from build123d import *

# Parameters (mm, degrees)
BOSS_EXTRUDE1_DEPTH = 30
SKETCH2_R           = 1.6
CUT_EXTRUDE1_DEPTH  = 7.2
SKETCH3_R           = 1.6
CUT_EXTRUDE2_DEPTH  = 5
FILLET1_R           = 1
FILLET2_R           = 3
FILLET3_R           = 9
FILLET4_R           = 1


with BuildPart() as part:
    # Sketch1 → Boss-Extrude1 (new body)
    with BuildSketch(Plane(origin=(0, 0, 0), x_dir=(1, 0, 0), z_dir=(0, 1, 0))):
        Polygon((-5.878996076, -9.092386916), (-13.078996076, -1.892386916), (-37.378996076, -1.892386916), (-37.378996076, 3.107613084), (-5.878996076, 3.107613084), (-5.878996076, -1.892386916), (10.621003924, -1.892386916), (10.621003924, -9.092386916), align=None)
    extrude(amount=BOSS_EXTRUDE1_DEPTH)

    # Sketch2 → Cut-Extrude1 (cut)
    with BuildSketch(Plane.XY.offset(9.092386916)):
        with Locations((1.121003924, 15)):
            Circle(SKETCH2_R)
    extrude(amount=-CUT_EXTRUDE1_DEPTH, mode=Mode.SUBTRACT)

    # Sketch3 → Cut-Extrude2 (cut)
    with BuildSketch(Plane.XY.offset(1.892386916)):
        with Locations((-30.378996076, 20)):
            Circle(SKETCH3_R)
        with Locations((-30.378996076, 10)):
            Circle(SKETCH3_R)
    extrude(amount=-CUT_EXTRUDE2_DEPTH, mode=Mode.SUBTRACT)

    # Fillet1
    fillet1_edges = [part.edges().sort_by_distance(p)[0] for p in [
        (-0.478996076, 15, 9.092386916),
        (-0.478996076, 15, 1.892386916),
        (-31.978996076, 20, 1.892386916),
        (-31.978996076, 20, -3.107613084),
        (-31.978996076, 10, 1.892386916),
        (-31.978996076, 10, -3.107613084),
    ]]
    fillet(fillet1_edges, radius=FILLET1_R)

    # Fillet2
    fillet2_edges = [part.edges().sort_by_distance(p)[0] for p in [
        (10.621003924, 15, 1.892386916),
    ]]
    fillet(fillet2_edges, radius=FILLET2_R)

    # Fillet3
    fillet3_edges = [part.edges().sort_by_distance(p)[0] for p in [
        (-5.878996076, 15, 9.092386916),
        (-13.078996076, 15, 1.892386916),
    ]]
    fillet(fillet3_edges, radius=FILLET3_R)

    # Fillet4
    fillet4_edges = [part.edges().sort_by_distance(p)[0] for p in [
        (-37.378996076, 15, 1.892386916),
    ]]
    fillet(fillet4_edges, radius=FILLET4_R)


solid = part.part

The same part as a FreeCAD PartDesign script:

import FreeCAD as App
import Part
import Sketcher
Q = App.Units.Quantity


def edges_at(feature, points):
    """Names of the edges that pass closest to the given points."""
    edges = feature.Shape.Edges
    near = lambda p: min(range(len(edges)), key=lambda i: edges[i].distToShape(Part.Vertex(*p))[0])
    return sorted({f"Edge{near(p) + 1}" for p in points})

doc = App.newDocument("Part")
body = doc.addObject("PartDesign::Body", "Body")

# Sketch on XZ plane
sketch1 = body.newObject("Sketcher::SketchObject", "Sketch")
sketch1.AttachmentSupport = (doc.getObject("XZ_Plane"), [""])
sketch1.MapMode = "FlatFace"
sketch1.addGeometry([
    Part.LineSegment(App.Vector(-13, 2, 0), App.Vector(-6, 9, 0)),  # 0
    Part.LineSegment(App.Vector(-6, 9, 0), App.Vector(11, 9, 0)),  # 1
    Part.LineSegment(App.Vector(11, 9, 0), App.Vector(11, 2, 0)),  # 2
    Part.LineSegment(App.Vector(11, 2, 0), App.Vector(-6, 2, 0)),  # 3
    Part.LineSegment(App.Vector(-6, 2, 0), App.Vector(-6, -3, 0)),  # 4
    Part.LineSegment(App.Vector(-6, -3, 0), App.Vector(-37, -3, 0)),  # 5
    Part.LineSegment(App.Vector(-37, -3, 0), App.Vector(-37, 2, 0)),  # 6
    Part.LineSegment(App.Vector(-37, 2, 0), App.Vector(-13, 2, 0)),  # 7
], False)
sketch1.addConstraint([
    Sketcher.Constraint("Coincident", 0, 2, 1, 1),
    Sketcher.Constraint("Coincident", 1, 2, 2, 1),
    Sketcher.Constraint("Coincident", 2, 2, 3, 1),
    Sketcher.Constraint("Coincident", 3, 2, 4, 1),
    Sketcher.Constraint("Coincident", 4, 2, 5, 1),
    Sketcher.Constraint("Coincident", 5, 2, 6, 1),
    Sketcher.Constraint("Coincident", 6, 2, 7, 1),
    Sketcher.Constraint("Coincident", 7, 2, 0, 1),
    Sketcher.Constraint("Horizontal", 1),
    Sketcher.Constraint("Vertical", 2),
    Sketcher.Constraint("Horizontal", 3),
    Sketcher.Constraint("Vertical", 4),
    Sketcher.Constraint("Horizontal", 5),
    Sketcher.Constraint("Vertical", 6),
    Sketcher.Constraint("Horizontal", 7),
    Sketcher.Constraint("Horizontal", 3, 2, 6, 2),
    Sketcher.Constraint("Vertical", 0, 2, 3, 2),
    Sketcher.Constraint("DistanceY", 4, 2, 4, 1, Q("5 mm")),
    Sketcher.Constraint("Angle", 0, Q("45 deg")),
    Sketcher.Constraint("DistanceX", 1, 1, 1, 2, Q("16.5 mm")),
    Sketcher.Constraint("DistanceX", 5, 2, 5, 1, Q("31.5 mm")),
    Sketcher.Constraint("DistanceX", 7, 1, 7, 2, Q("24.3 mm")),
    Sketcher.Constraint("DistanceX", 0, 2, -1, 1, Q("5.878996 mm")),
    Sketcher.Constraint("DistanceY", -1, 1, 0, 2, Q("9.092387 mm")),
])
pad1 = body.newObject("PartDesign::Pad", "Pad")
pad1.Profile = sketch1
pad1.Length = 30
pad1.Reversed = True

# Sketch on XY plane
sketch2 = body.newObject("Sketcher::SketchObject", "Sketch001")
sketch2.AttachmentSupport = (doc.getObject("XY_Plane"), [""])
sketch2.MapMode = "FlatFace"
sketch2.AttachmentOffset = App.Placement(App.Vector(0, 0, 9.092387), App.Rotation())
sketch2.addGeometry(Part.Circle(App.Vector(1.1, 15, 0), App.Vector(0, 0, 1), 1.6), False)
sketch2.addConstraint([
    Sketcher.Constraint("Diameter", 0, Q("3.2 mm")),
    Sketcher.Constraint("DistanceY", -1, 1, 0, 3, Q("15 mm")),
    Sketcher.Constraint("DistanceX", -1, 1, 0, 3, Q("1.121004 mm")),
])
pocket1 = body.newObject("PartDesign::Pocket", "Pocket")
pocket1.Profile = sketch2
pocket1.Length = 7.2

# Sketch on XY plane
sketch3 = body.newObject("Sketcher::SketchObject", "Sketch002")
sketch3.AttachmentSupport = (doc.getObject("XY_Plane"), [""])
sketch3.MapMode = "FlatFace"
sketch3.AttachmentOffset = App.Placement(App.Vector(0, 0, 1.892387), App.Rotation())
sketch3.addGeometry([
    Part.Circle(App.Vector(-30.4, 20, 0), App.Vector(0, 0, 1), 1.6),
    Part.Circle(App.Vector(-30.4, 10, 0), App.Vector(0, 0, 1), 1.6),
], False)
sketch3.addConstraint([
    Sketcher.Constraint("Equal", 0, 1),
    Sketcher.Constraint("Vertical", 0, 3, 1, 3),
    Sketcher.Constraint("Diameter", 0, Q("3.2 mm")),
    Sketcher.Constraint("DistanceY", -1, 1, 0, 3, Q("20 mm")),
    Sketcher.Constraint("DistanceY", -1, 1, 1, 3, Q("10 mm")),
    Sketcher.Constraint("DistanceX", 0, 3, -1, 1, Q("30.378996 mm")),
])
pocket2 = body.newObject("PartDesign::Pocket", "Pocket001")
pocket2.Profile = sketch3
pocket2.Length = 5
doc.recompute()

fillet = body.newObject("PartDesign::Fillet", "Fillet")
fillet.Base = (pocket2, edges_at(pocket2, [
    (-0.479, 15, 9.092),
    (-0.479, 15, 1.892),
    (-31.979, 20, 1.892),
    (-31.979, 20, -3.108),
    (-31.979, 10, 1.892),
    (-31.979, 10, -3.108),
]))
fillet.Radius = 1
doc.recompute()

fillet2 = body.newObject("PartDesign::Fillet", "Fillet001")
fillet2.Base = (fillet, edges_at(fillet, [(10.621, 15, 1.892)]))
fillet2.Radius = 3
doc.recompute()

fillet3 = body.newObject("PartDesign::Fillet", "Fillet002")
fillet3.Base = (fillet2, edges_at(fillet2, [(-5.879, 15, 9.092), (-13.079, 15, 1.892)]))
fillet3.Radius = 9
doc.recompute()

fillet4 = body.newObject("PartDesign::Fillet", "Fillet003")
fillet4.Base = (fillet3, edges_at(fillet3, [(-37.379, 15, 1.892)]))
fillet4.Radius = 1

doc.recompute()
